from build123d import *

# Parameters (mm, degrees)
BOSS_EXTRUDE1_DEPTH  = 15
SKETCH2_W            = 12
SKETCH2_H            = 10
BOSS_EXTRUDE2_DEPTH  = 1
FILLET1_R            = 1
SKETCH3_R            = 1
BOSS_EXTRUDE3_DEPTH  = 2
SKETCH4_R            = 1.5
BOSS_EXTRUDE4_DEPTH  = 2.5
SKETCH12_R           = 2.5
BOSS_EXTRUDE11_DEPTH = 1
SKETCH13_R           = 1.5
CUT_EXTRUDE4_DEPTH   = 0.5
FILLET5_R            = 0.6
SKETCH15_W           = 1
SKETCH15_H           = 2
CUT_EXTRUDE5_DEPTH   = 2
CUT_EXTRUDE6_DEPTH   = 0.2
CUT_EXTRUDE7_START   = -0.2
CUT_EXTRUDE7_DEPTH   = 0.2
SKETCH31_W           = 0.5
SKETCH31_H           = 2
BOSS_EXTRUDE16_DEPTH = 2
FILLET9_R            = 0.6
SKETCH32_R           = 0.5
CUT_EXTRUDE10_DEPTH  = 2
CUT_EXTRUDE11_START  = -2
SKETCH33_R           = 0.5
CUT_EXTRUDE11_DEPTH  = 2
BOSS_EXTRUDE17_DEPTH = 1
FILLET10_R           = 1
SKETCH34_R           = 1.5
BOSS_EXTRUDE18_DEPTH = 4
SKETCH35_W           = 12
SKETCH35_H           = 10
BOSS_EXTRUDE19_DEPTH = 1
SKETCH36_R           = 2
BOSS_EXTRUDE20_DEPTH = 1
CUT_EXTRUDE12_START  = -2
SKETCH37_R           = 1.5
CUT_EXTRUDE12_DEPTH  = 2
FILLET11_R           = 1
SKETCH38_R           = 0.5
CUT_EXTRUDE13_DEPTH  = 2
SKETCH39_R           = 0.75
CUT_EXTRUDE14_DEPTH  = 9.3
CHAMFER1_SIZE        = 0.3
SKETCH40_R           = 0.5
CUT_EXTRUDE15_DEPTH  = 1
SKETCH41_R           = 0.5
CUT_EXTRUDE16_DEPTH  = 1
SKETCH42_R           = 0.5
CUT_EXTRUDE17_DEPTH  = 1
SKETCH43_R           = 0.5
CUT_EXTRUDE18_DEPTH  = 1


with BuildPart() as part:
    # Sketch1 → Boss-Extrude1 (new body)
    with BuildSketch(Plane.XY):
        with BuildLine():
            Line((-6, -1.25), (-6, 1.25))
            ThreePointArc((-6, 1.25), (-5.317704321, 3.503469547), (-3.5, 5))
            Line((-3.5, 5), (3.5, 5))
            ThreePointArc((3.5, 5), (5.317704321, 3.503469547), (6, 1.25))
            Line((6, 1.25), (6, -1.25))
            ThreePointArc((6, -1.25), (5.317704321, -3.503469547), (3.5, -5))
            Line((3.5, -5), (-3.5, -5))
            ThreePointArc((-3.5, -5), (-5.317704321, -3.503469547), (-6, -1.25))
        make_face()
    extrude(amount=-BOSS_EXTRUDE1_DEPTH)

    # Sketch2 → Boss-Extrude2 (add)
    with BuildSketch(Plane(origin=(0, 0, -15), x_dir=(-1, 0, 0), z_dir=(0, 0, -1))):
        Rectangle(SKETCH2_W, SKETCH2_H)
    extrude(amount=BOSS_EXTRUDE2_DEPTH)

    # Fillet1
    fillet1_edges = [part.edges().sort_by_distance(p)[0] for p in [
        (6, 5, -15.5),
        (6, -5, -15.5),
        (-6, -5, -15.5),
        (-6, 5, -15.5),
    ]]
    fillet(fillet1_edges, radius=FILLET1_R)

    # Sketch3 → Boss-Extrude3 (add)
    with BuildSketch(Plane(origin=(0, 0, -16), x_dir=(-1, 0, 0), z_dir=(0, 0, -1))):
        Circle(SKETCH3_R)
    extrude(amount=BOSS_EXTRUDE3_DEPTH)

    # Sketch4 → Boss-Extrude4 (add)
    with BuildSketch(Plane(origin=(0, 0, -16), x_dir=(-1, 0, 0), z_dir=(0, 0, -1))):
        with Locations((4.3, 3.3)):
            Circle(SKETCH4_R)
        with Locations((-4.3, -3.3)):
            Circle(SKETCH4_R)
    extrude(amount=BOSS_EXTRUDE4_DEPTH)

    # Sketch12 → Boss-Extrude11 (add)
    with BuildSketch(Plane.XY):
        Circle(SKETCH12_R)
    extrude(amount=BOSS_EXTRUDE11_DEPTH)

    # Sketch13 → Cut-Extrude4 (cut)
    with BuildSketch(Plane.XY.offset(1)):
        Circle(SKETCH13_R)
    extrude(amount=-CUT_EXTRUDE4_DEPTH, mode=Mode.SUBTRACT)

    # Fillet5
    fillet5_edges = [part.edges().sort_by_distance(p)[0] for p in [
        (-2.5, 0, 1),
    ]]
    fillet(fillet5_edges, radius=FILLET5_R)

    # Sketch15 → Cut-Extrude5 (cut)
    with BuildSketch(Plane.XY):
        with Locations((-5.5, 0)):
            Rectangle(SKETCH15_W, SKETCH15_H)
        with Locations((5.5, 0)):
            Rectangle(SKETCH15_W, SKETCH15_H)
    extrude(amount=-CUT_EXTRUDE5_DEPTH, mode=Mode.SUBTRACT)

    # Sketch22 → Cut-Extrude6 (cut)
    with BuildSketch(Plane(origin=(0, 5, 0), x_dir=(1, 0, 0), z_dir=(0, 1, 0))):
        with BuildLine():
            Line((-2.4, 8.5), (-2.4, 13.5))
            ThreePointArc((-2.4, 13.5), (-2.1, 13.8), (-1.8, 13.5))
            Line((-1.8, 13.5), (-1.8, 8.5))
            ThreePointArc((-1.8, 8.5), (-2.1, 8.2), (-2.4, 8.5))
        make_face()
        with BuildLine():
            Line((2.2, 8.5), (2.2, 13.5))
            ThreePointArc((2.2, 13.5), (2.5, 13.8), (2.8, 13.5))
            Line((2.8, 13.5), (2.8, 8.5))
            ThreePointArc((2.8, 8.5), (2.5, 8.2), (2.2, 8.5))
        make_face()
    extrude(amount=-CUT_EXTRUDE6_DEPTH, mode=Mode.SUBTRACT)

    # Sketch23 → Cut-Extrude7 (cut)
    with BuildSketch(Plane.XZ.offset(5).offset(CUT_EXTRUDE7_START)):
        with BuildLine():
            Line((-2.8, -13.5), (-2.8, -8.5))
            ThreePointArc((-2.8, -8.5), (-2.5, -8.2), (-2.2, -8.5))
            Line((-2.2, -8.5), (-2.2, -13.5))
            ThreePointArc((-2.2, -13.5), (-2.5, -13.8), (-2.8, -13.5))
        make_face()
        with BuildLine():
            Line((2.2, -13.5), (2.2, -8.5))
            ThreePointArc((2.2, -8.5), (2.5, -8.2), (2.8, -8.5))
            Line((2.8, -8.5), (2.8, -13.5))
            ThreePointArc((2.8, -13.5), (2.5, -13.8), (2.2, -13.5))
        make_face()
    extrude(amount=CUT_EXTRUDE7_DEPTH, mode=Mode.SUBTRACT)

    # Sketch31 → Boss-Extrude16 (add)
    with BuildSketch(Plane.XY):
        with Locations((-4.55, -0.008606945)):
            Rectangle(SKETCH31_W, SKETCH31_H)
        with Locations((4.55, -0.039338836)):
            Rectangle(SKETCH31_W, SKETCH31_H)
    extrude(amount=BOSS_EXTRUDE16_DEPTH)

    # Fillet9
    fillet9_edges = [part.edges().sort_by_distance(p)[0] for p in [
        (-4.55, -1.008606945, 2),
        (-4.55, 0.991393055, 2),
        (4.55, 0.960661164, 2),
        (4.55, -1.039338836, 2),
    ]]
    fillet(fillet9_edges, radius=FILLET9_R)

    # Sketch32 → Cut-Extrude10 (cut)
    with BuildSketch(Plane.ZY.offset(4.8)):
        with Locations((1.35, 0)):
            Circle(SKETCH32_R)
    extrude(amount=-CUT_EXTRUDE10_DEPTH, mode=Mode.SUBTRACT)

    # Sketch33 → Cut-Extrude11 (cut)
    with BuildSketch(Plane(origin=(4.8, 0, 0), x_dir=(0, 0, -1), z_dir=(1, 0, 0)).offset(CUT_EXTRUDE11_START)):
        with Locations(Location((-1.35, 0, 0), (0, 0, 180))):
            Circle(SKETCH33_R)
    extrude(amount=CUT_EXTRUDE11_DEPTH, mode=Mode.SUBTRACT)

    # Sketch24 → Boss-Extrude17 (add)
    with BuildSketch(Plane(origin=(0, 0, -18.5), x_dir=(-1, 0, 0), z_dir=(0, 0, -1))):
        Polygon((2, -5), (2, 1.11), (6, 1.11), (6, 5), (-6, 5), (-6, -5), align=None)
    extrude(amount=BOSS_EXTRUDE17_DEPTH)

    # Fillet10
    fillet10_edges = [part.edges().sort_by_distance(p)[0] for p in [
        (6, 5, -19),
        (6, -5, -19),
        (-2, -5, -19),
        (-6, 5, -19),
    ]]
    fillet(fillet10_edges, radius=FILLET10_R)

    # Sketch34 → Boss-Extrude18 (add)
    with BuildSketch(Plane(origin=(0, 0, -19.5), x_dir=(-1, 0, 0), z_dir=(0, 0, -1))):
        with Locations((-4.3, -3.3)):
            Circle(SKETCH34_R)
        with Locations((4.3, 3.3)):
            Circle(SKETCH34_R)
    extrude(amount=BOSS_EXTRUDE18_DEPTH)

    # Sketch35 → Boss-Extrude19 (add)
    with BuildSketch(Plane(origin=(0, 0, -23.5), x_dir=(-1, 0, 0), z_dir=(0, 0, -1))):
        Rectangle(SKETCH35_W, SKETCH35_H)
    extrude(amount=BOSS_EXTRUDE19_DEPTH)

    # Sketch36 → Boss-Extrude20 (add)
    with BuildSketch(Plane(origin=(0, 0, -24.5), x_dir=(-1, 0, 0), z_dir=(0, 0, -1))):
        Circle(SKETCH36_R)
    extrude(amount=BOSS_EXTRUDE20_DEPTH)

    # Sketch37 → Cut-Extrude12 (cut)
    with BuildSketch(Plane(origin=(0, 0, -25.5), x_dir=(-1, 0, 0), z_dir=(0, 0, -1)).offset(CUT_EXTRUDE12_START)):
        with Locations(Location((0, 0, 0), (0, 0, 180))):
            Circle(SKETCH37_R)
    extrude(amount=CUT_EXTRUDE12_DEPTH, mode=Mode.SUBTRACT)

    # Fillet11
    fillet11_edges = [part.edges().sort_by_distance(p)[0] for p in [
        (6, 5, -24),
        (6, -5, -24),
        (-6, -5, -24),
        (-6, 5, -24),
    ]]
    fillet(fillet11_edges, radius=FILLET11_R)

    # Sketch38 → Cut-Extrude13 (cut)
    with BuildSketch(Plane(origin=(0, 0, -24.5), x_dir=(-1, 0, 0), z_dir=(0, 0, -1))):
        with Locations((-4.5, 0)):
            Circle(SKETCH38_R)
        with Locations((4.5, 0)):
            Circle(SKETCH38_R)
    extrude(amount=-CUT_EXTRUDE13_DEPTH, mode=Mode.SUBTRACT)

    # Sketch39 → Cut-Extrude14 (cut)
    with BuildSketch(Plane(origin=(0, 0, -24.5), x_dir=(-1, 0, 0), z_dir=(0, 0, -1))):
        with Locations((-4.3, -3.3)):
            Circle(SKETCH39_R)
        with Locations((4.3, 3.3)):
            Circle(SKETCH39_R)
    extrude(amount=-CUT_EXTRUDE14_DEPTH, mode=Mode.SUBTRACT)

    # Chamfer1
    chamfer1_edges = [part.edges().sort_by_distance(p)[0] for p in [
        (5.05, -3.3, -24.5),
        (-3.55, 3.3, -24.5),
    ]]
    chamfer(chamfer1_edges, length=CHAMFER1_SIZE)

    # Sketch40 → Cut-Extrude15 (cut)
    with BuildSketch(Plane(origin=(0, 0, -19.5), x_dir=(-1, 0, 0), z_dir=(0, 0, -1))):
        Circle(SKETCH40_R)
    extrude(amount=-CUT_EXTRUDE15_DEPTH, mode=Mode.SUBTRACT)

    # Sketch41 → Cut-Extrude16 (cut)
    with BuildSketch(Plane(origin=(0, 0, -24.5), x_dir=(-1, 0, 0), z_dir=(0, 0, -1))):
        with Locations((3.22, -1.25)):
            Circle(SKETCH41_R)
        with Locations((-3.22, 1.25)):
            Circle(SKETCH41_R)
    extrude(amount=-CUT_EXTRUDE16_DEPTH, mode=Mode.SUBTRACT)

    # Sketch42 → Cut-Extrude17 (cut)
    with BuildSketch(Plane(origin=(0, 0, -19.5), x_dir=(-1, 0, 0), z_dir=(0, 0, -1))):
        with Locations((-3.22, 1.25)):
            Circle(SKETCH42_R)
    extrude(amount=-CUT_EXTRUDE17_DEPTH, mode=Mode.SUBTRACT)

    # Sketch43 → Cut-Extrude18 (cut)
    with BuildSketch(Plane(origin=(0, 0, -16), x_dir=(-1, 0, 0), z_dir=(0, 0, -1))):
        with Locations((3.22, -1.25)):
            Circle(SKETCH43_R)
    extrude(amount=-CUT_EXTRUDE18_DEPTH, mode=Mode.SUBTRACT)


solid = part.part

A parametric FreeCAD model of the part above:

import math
import FreeCAD as App
import Part
import Sketcher
from FreeCAD import Vector
Q = App.Units.Quantity


def edges_at(feature, points):
    """Names of the edges that pass closest to the given points."""
    edges = feature.Shape.Edges
    near = lambda p: min(range(len(edges)), key=lambda i: edges[i].distToShape(Part.Vertex(*p))[0])
    return sorted({f"Edge{near(p) + 1}" for p in points})

doc = App.newDocument("Part")
body = doc.addObject("PartDesign::Body", "Body")

sketch1 = body.newObject("Sketcher::SketchObject", "Sketch")
sketch1.AttachmentSupport = (doc.getObject("XY_Plane"), [""])
sketch1.MapMode = "FlatFace"
sketch1.addGeometry(Part.LineSegment(Vector(-6, 1.2, 0), Vector(-6, -1.2, 0)), False)
sketch1.addGeometry(Part.ArcOfCircle(Part.Circle(Vector(-1.9, -1.2, 0), Vector(0, 0, 1), 4.1), math.radians(180), math.radians(247)), False)
sketch1.addGeometry(Part.LineSegment(Vector(-3.5, -5, 0), Vector(3.5, -5, 0)), False)
sketch1.addGeometry(Part.ArcOfCircle(Part.Circle(Vector(1.9, -1.2, 0), Vector(0, 0, 1), 4.1), math.radians(-67), math.radians(0)), False)
sketch1.addGeometry(Part.LineSegment(Vector(6, -1.2, 0), Vector(6, 1.2, 0)), False)
sketch1.addGeometry(Part.ArcOfCircle(Part.Circle(Vector(1.9, 1.2, 0), Vector(0, 0, 1), 4.1), math.radians(0), math.radians(67)), False)
sketch1.addGeometry(Part.LineSegment(Vector(3.5, 5, 0), Vector(-3.5, 5, 0)), False)
sketch1.addGeometry(Part.ArcOfCircle(Part.Circle(Vector(-1.9, 1.2, 0), Vector(0, 0, 1), 4.1), math.radians(113), math.radians(180)), False)
sketch1.addConstraint(Sketcher.Constraint("Tangent", 0, 2, 1, 1))
sketch1.addConstraint(Sketcher.Constraint("Coincident", 1, 2, 2, 1))
sketch1.addConstraint(Sketcher.Constraint("Coincident", 2, 2, 3, 1))
sketch1.addConstraint(Sketcher.Constraint("Tangent", 3, 2, 4, 1))
sketch1.addConstraint(Sketcher.Constraint("Tangent", 4, 2, 5, 1))
sketch1.addConstraint(Sketcher.Constraint("Coincident", 5, 2, 6, 1))
sketch1.addConstraint(Sketcher.Constraint("Coincident", 6, 2, 7, 1))
sketch1.addConstraint(Sketcher.Constraint("Tangent", 7, 2, 0, 1))
sketch1.addConstraint(Sketcher.Constraint("Vertical", 0))
sketch1.addConstraint(Sketcher.Constraint("Horizontal", 2))
sketch1.addConstraint(Sketcher.Constraint("Vertical", 4))
sketch1.addConstraint(Sketcher.Constraint("Horizontal", 6))
sketch1.addConstraint(Sketcher.Constraint("Equal", 1, 3))
sketch1.addConstraint(Sketcher.Constraint("Equal", 3, 5))
sketch1.addConstraint(Sketcher.Constraint("Equal", 5, 7))
sketch1.addConstraint(Sketcher.Constraint("Symmetric", 1, 3, 5, 3, -1, 1))
sketch1.addConstraint(Sketcher.Constraint("Symmetric", 2, 2, 6, 2, -1, 1))
sketch1.addConstraint(Sketcher.Constraint("Horizontal", 1, 3, 3, 3))
sketch1.addConstraint(Sketcher.Constraint("DistanceX", 2, 1, 2, 2, Q("7 mm")))
sketch1.addConstraint(Sketcher.Constraint("DistanceY", 0, 2, 0, 1, Q("2.5 mm")))
sketch1.addConstraint(Sketcher.Constraint("DistanceX", 0, 2, -1, 1, Q("6 mm")))
sketch1.addConstraint(Sketcher.Constraint("DistanceY", 1, 2, -1, 1, Q("5 mm")))
pad1 = body.newObject("PartDesign::Pad", "Pad")
pad1.Profile = sketch1
pad1.Length = 15
pad1.Reversed = True

sketch2 = body.newObject("Sketcher::SketchObject", "Sketch001")
sketch2.AttachmentSupport = (doc.getObject("XY_Plane"), [""])
sketch2.MapMode = "FlatFace"
sketch2.AttachmentOffset = App.Placement(Vector(0, 0, -15), App.Rotation())
sketch2.addGeometry(Part.LineSegment(Vector(6, 5, 0), Vector(6, -5, 0)), False)
sketch2.addGeometry(Part.LineSegment(Vector(6, -5, 0), Vector(-6, -5, 0)), False)
sketch2.addGeometry(Part.LineSegment(Vector(-6, -5, 0), Vector(-6, 5, 0)), False)
sketch2.addGeometry(Part.LineSegment(Vector(-6, 5, 0), Vector(6, 5, 0)), False)
sketch2.addConstraint(Sketcher.Constraint("Coincident", 0, 2, 1, 1))
sketch2.addConstraint(Sketcher.Constraint("Coincident", 1, 2, 2, 1))
sketch2.addConstraint(Sketcher.Constraint("Coincident", 2, 2, 3, 1))
sketch2.addConstraint(Sketcher.Constraint("Coincident", 3, 2, 0, 1))
sketch2.addConstraint(Sketcher.Constraint("Vertical", 0))
sketch2.addConstraint(Sketcher.Constraint("Horizontal", 1))
sketch2.addConstraint(Sketcher.Constraint("Vertical", 2))
sketch2.addConstraint(Sketcher.Constraint("Horizontal", 3))
sketch2.addConstraint(Sketcher.Constraint("Symmetric", 0, 2, 2, 2, -1, 1))
sketch2.addConstraint(Sketcher.Constraint("DistanceX", 1, 2, 1, 1, Q("12 mm")))
sketch2.addConstraint(Sketcher.Constraint("DistanceY", 0, 2, 0, 1, Q("10 mm")))
pad2 = body.newObject("PartDesign::Pad", "Pad001")
pad2.Profile = sketch2
pad2.Length = 1
pad2.Reversed = True
doc.recompute()

fillet = body.newObject("PartDesign::Fillet", "Fillet")
fillet.Base = (pad2, edges_at(pad2, [
    (6, 5, -15.5),
    (6, -5, -15.5),
    (-6, -5, -15.5),
    (-6, 5, -15.5),
]))
fillet.Radius = 1

sketch3 = body.newObject("Sketcher::SketchObject", "Sketch002")
sketch3.AttachmentSupport = (doc.getObject("XY_Plane"), [""])
sketch3.MapMode = "FlatFace"
sketch3.AttachmentOffset = App.Placement(Vector(0, 0, -16), App.Rotation())
sketch3.addGeometry(Part.Circle(Vector(0, 0, 0), Vector(0, 0, 1), 1), False)
sketch3.addConstraint(Sketcher.Constraint("Coincident", 0, 3, -1, 1))
sketch3.addConstraint(Sketcher.Constraint("Diameter", 0, Q("2 mm")))
pad3 = body.newObject("PartDesign::Pad", "Pad002")
pad3.Profile = sketch3
pad3.Length = 2
pad3.Reversed = True

sketch4 = body.newObject("Sketcher::SketchObject", "Sketch003")
sketch4.AttachmentSupport = (doc.getObject("XY_Plane"), [""])
sketch4.MapMode = "FlatFace"
sketch4.AttachmentOffset = App.Placement(Vector(0, 0, -16), App.Rotation())
sketch4.addGeometry(Part.Circle(Vector(-4.3, 3.3, 0), Vector(0, 0, 1), 1.5), False)
sketch4.addGeometry(Part.Circle(Vector(4.3, -3.3, 0), Vector(0, 0, 1), 1.5), False)
sketch4.addConstraint(Sketcher.Constraint("Equal", 0, 1))
sketch4.addConstraint(Sketcher.Constraint("Symmetric", 0, 3, 1, 3, -1, 1))
sketch4.addConstraint(Sketcher.Constraint("Diameter", 0, Q("3 mm")))
sketch4.addConstraint(Sketcher.Constraint("DistanceX", 0, 3, -1, 1, Q("4.3 mm")))
sketch4.addConstraint(Sketcher.Constraint("DistanceY", -1, 1, 0, 3, Q("3.3 mm")))
pad4 = body.newObject("PartDesign::Pad", "Pad003")
pad4.Profile = sketch4
pad4.Length = 2.5
pad4.Reversed = True

sketch5 = body.newObject("Sketcher::SketchObject", "Sketch004")
sketch5.AttachmentSupport = (doc.getObject("XY_Plane"), [""])
sketch5.MapMode = "FlatFace"
sketch5.addGeometry(Part.Circle(Vector(0, 0, 0), Vector(0, 0, 1), 2.5), False)
sketch5.addConstraint(Sketcher.Constraint("Coincident", 0, 3, -1, 1))
sketch5.addConstraint(Sketcher.Constraint("Diameter", 0, Q("5 mm")))
pad5 = body.newObject("PartDesign::Pad", "Pad004")
pad5.Profile = sketch5
pad5.Length = 1

sketch6 = body.newObject("Sketcher::SketchObject", "Sketch005")
sketch6.AttachmentSupport = (doc.getObject("XY_Plane"), [""])
sketch6.MapMode = "FlatFace"
sketch6.AttachmentOffset = App.Placement(Vector(0, 0, 1), App.Rotation())
sketch6.addGeometry(Part.Circle(Vector(0, 0, 0), Vector(0, 0, 1), 1.5), False)
sketch6.addConstraint(Sketcher.Constraint("Coincident", 0, 3, -1, 1))
sketch6.addConstraint(Sketcher.Constraint("Diameter", 0, Q("3 mm")))
pocket1 = body.newObject("PartDesign::Pocket", "Pocket")
pocket1.Profile = sketch6
pocket1.Length = 0.5
doc.recompute()

fillet2 = body.newObject("PartDesign::Fillet", "Fillet001")
fillet2.Base = (pocket1, edges_at(pocket1, [(-2.5, 0, 1)]))
fillet2.Radius = 0.6

sketch7 = body.newObject("Sketcher::SketchObject", "Sketch006")
sketch7.AttachmentSupport = (doc.getObject("XY_Plane"), [""])
sketch7.MapMode = "FlatFace"
sketch7.addGeometry(Part.LineSegment(Vector(-6, 1, 0), Vector(-6, -1, 0)), False)
sketch7.addGeometry(Part.LineSegment(Vector(-6, -1, 0), Vector(-5, -1, 0)), False)
sketch7.addGeometry(Part.LineSegment(Vector(-5, -1, 0), Vector(-5, 1, 0)), False)
sketch7.addGeometry(Part.LineSegment(Vector(-5, 1, 0), Vector(-6, 1, 0)), False)
sketch7.addGeometry(Part.LineSegment(Vector(5, 1, 0), Vector(5, -1, 0)), False)
sketch7.addGeometry(Part.LineSegment(Vector(5, -1, 0), Vector(6, -1, 0)), False)
sketch7.addGeometry(Part.LineSegment(Vector(6, -1, 0), Vector(6, 1, 0)), False)
sketch7.addGeometry(Part.LineSegment(Vector(6, 1, 0), Vector(5, 1, 0)), False)
sketch7.addConstraint(Sketcher.Constraint("Coincident", 0, 2, 1, 1))
sketch7.addConstraint(Sketcher.Constraint("Coincident", 1, 2, 2, 1))
sketch7.addConstraint(Sketcher.Constraint("Coincident", 2, 2, 3, 1))
sketch7.addConstraint(Sketcher.Constraint("Coincident", 3, 2, 0, 1))
sketch7.addConstraint(Sketcher.Constraint("Coincident", 4, 2, 5, 1))
sketch7.addConstraint(Sketcher.Constraint("Coincident", 5, 2, 6, 1))
sketch7.addConstraint(Sketcher.Constraint("Coincident", 6, 2, 7, 1))
sketch7.addConstraint(Sketcher.Constraint("Coincident", 7, 2, 4, 1))
sketch7.addConstraint(Sketcher.Constraint("Vertical", 0))
sketch7.addConstraint(Sketcher.Constraint("Horizontal", 1))
sketch7.addConstraint(Sketcher.Constraint("Vertical", 2))
sketch7.addConstraint(Sketcher.Constraint("Horizontal", 3))
sketch7.addConstraint(Sketcher.Constraint("Vertical", 4))
sketch7.addConstraint(Sketcher.Constraint("Horizontal", 5))
sketch7.addConstraint(Sketcher.Constraint("Vertical", 6))
sketch7.addConstraint(Sketcher.Constraint("Horizontal", 7))
sketch7.addConstraint(Sketcher.Constraint("Symmetric", 2, 2, 4, 2, -1, 1))
sketch7.addConstraint(Sketcher.Constraint("Symmetric", 0, 2, 6, 2, -1, 1))
sketch7.addConstraint(Sketcher.Constraint("Horizontal", 1, 2, 4, 2))
sketch7.addConstraint(Sketcher.Constraint("DistanceX", 1, 1, 1, 2, Q("1 mm")))
sketch7.addConstraint(Sketcher.Constraint("DistanceY", 0, 2, 0, 1, Q("2 mm")))
sketch7.addConstraint(Sketcher.Constraint("DistanceX", 0, 2, -1, 1, Q("6 mm")))
pocket2 = body.newObject("PartDesign::Pocket", "Pocket001")
pocket2.Profile = sketch7
pocket2.Length = 2

sketch8 = body.newObject("Sketcher::SketchObject", "Sketch007")
sketch8.AttachmentSupport = (doc.getObject("XZ_Plane"), [""])
sketch8.MapMode = "FlatFace"
sketch8.AttachmentOffset = App.Placement(Vector(0, 0, -5), App.Rotation())
sketch8.addGeometry(Part.LineSegment(Vector(-2.4, -13.5, 0), Vector(-2.4, -8.5, 0)), False)
sketch8.addGeometry(Part.ArcOfCircle(Part.Circle(Vector(-2.1, -8.5, 0), Vector(0, 0, 1), 0.3), math.radians(0), math.radians(180)), False)
sketch8.addGeometry(Part.LineSegment(Vector(-1.8, -8.5, 0), Vector(-1.8, -13.5, 0)), False)
sketch8.addGeometry(Part.ArcOfCircle(Part.Circle(Vector(-2.1, -13.5, 0), Vector(0, 0, 1), 0.3), math.radians(180), math.radians(360)), False)
sketch8.addGeometry(Part.LineSegment(Vector(2.2, -13.5, 0), Vector(2.2, -8.5, 0)), False)
sketch8.addGeometry(Part.ArcOfCircle(Part.Circle(Vector(2.5, -8.5, 0), Vector(0, 0, 1), 0.3), math.radians(0), math.radians(180)), False)
sketch8.addGeometry(Part.LineSegment(Vector(2.8, -8.5, 0), Vector(2.8, -13.5, 0)), False)
sketch8.addGeometry(Part.ArcOfCircle(Part.Circle(Vector(2.5, -13.5, 0), Vector(0, 0, 1), 0.3), math.radians(180), math.radians(360)), False)
sketch8.addConstraint(Sketcher.Constraint("Tangent", 0, 2, 1, 2))
sketch8.addConstraint(Sketcher.Constraint("Tangent", 1, 1, 2, 1))
sketch8.addConstraint(Sketcher.Constraint("Tangent", 2, 2, 3, 2))
sketch8.addConstraint(Sketcher.Constraint("Tangent", 3, 1, 0, 1))
sketch8.addConstraint(Sketcher.Constraint("Tangent", 4, 2, 5, 2))
sketch8.addConstraint(Sketcher.Constraint("Tangent", 5, 1, 6, 1))
sketch8.addConstraint(Sketcher.Constraint("Tangent", 6, 2, 7, 2))
sketch8.addConstraint(Sketcher.Constraint("Tangent", 7, 1, 4, 1))
sketch8.addConstraint(Sketcher.Constraint("Vertical", 0))
sketch8.addConstraint(Sketcher.Constraint("Vertical", 2))
sketch8.addConstraint(Sketcher.Constraint("Vertical", 4))
sketch8.addConstraint(Sketcher.Constraint("Vertical", 6))
sketch8.addConstraint(Sketcher.Constraint("Equal", 3, 5))
sketch8.addConstraint(Sketcher.Constraint("Horizontal", 1, 3, 5, 3))
sketch8.addConstraint(Sketcher.Constraint("Horizontal", 3, 3, 7, 3))
sketch8.addConstraint(Sketcher.Constraint("Radius", 1, Q("0.3 mm")))
sketch8.addConstraint(Sketcher.Constraint("DistanceY", 0, 1, 0, 2, Q("5 mm")))
sketch8.addConstraint(Sketcher.Constraint("DistanceX", 1, 1, 4, 2, Q("4 mm")))
sketch8.addConstraint(Sketcher.Constraint("DistanceX", 1, 3, -1, 1, Q("2.1 mm")))
sketch8.addConstraint(Sketcher.Constraint("DistanceY", 1, 3, -1, 1, Q("8.5 mm")))
pocket3 = body.newObject("PartDesign::Pocket", "Pocket002")
pocket3.Profile = sketch8
pocket3.Length = 0.2
pocket3.Reversed = True

sketch9 = body.newObject("Sketcher::SketchObject", "Sketch008")
sketch9.AttachmentSupport = (doc.getObject("XZ_Plane"), [""])
sketch9.MapMode = "FlatFace"
sketch9.AttachmentOffset = App.Placement(Vector(0, 0, 4.8), App.Rotation())
sketch9.addGeometry(Part.LineSegment(Vector(-2.8, -8.5, 0), Vector(-2.8, -13.5, 0)), False)
sketch9.addGeometry(Part.ArcOfCircle(Part.Circle(Vector(-2.5, -13.5, 0), Vector(0, 0, 1), 0.3), math.radians(180), math.radians(360)), False)
sketch9.addGeometry(Part.LineSegment(Vector(-2.2, -13.5, 0), Vector(-2.2, -8.5, 0)), False)
sketch9.addGeometry(Part.ArcOfCircle(Part.Circle(Vector(-2.5, -8.5, 0), Vector(0, 0, 1), 0.3), math.radians(0), math.radians(180)), False)
sketch9.addGeometry(Part.LineSegment(Vector(2.2, -8.5, 0), Vector(2.2, -13.5, 0)), False)
sketch9.addGeometry(Part.ArcOfCircle(Part.Circle(Vector(2.5, -13.5, 0), Vector(0, 0, 1), 0.3), math.radians(180), math.radians(360)), False)
sketch9.addGeometry(Part.LineSegment(Vector(2.8, -13.5, 0), Vector(2.8, -8.5, 0)), False)
sketch9.addGeometry(Part.ArcOfCircle(Part.Circle(Vector(2.5, -8.5, 0), Vector(0, 0, 1), 0.3), math.radians(0), math.radians(180)), False)
sketch9.addConstraint(Sketcher.Constraint("Tangent", 0, 2, 1, 1))
sketch9.addConstraint(Sketcher.Constraint("Tangent", 1, 2, 2, 1))
sketch9.addConstraint(Sketcher.Constraint("Tangent", 2, 2, 3, 1))
sketch9.addConstraint(Sketcher.Constraint("Tangent", 3, 2, 0, 1))
sketch9.addConstraint(Sketcher.Constraint("Tangent", 4, 2, 5, 1))
sketch9.addConstraint(Sketcher.Constraint("Tangent", 5, 2, 6, 1))
sketch9.addConstraint(Sketcher.Constraint("Tangent", 6, 2, 7, 1))
sketch9.addConstraint(Sketcher.Constraint("Tangent", 7, 2, 4, 1))
sketch9.addConstraint(Sketcher.Constraint("Vertical", 0))
sketch9.addConstraint(Sketcher.Constraint("Vertical", 2))
sketch9.addConstraint(Sketcher.Constraint("Vertical", 4))
sketch9.addConstraint(Sketcher.Constraint("Vertical", 6))
sketch9.addConstraint(Sketcher.Constraint("Equal", 3, 5))
sketch9.addConstraint(Sketcher.Constraint("Symmetric", 1, 3, 5, 3, -2))
sketch9.addConstraint(Sketcher.Constraint("Horizontal", 3, 3, 7, 3))
sketch9.addConstraint(Sketcher.Constraint("Radius", 1, Q("0.3 mm")))
sketch9.addConstraint(Sketcher.Constraint("DistanceY", 0, 2, 0, 1, Q("5 mm")))
sketch9.addConstraint(Sketcher.Constraint("DistanceX", 1, 3, 5, 3, Q("5 mm")))
sketch9.addConstraint(Sketcher.Constraint("DistanceY", 1, 3, -1, 1, Q("13.5 mm")))
pocket4 = body.newObject("PartDesign::Pocket", "Pocket003")
pocket4.Profile = sketch9
pocket4.Length = 0.2
pocket4.Reversed = True

sketch10 = body.newObject("Sketcher::SketchObject", "Sketch009")
sketch10.AttachmentSupport = (doc.getObject("XY_Plane"), [""])
sketch10.MapMode = "FlatFace"
sketch10.addGeometry(Part.LineSegment(Vector(-4.8, 1, 0), Vector(-4.8, -1, 0)), False)
sketch10.addGeometry(Part.LineSegment(Vector(-4.8, -1, 0), Vector(-4.3, -1, 0)), False)
sketch10.addGeometry(Part.LineSegment(Vector(-4.3, -1, 0), Vector(-4.3, 1, 0)), False)
sketch10.addGeometry(Part.LineSegment(Vector(-4.3, 1, 0), Vector(-4.8, 1, 0)), False)
sketch10.addGeometry(Part.LineSegment(Vector(4.3, 1, 0), Vector(4.3, -1, 0)), False)
sketch10.addGeometry(Part.LineSegment(Vector(4.3, -1, 0), Vector(4.8, -1, 0)), False)
sketch10.addGeometry(Part.LineSegment(Vector(4.8, -1, 0), Vector(4.8, 1, 0)), False)
sketch10.addGeometry(Part.LineSegment(Vector(4.8, 1, 0), Vector(4.3, 1, 0)), False)
sketch10.addConstraint(Sketcher.Constraint("Coincident", 0, 2, 1, 1))
sketch10.addConstraint(Sketcher.Constraint("Coincident", 1, 2, 2, 1))
sketch10.addConstraint(Sketcher.Constraint("Coincident", 2, 2, 3, 1))
sketch10.addConstraint(Sketcher.Constraint("Coincident", 3, 2, 0, 1))
sketch10.addConstraint(Sketcher.Constraint("Coincident", 4, 2, 5, 1))
sketch10.addConstraint(Sketcher.Constraint("Coincident", 5, 2, 6, 1))
sketch10.addConstraint(Sketcher.Constraint("Coincident", 6, 2, 7, 1))
sketch10.addConstraint(Sketcher.Constraint("Coincident", 7, 2, 4, 1))
sketch10.addConstraint(Sketcher.Constraint("Vertical", 0))
sketch10.addConstraint(Sketcher.Constraint("Horizontal", 1))
sketch10.addConstraint(Sketcher.Constraint("Vertical", 2))
sketch10.addConstraint(Sketcher.Constraint("Horizontal", 3))
sketch10.addConstraint(Sketcher.Constraint("Vertical", 4))
sketch10.addConstraint(Sketcher.Constraint("Horizontal", 5))
sketch10.addConstraint(Sketcher.Constraint("Vertical", 6))
sketch10.addConstraint(Sketcher.Constraint("Horizontal", 7))
sketch10.addConstraint(Sketcher.Constraint("Equal", 3, 5))
sketch10.addConstraint(Sketcher.Constraint("Equal", 2, 4))
sketch10.addConstraint(Sketcher.Constraint("DistanceY", 0, 2, 0, 1, Q("2 mm")))
sketch10.addConstraint(Sketcher.Constraint("DistanceX", 1, 1, 1, 2, Q("0.5 mm")))
sketch10.addConstraint(Sketcher.Constraint("DistanceX", 0, 2, -1, 1, Q("4.8 mm")))
sketch10.addConstraint(Sketcher.Constraint("DistanceX", -1, 1, 4, 2, Q("4.3 mm")))
sketch10.addConstraint(Sketcher.Constraint("DistanceY", 4, 2, -1, 1, Q("1.039339 mm")))
sketch10.addConstraint(Sketcher.Constraint("DistanceY", 4, 2, 1, 2, Q("0.030732 mm")))
pad6 = body.newObject("PartDesign::Pad", "Pad005")
pad6.Profile = sketch10
pad6.Length = 2
doc.recompute()

fillet3 = body.newObject("PartDesign::Fillet", "Fillet002")
fillet3.Base = (pad6, edges_at(pad6, [
    (-4.55, -1.009, 2),
    (-4.55, 0.991, 2),
    (4.55, 0.961, 2),
    (4.55, -1.039, 2),
]))
fillet3.Radius = 0.6

sketch11 = body.newObject("Sketcher::SketchObject", "Sketch010")
sketch11.AttachmentSupport = (doc.getObject("YZ_Plane"), [""])
sketch11.MapMode = "FlatFace"
sketch11.AttachmentOffset = App.Placement(Vector(0, 0, -4.8), App.Rotation())
sketch11.addGeometry(Part.Circle(Vector(0, 1.4, 0), Vector(0, 0, 1), 0.5), False)
sketch11.addConstraint(Sketcher.Constraint("PointOnObject", 0, 3, -2))
sketch11.addConstraint(Sketcher.Constraint("Diameter", 0, Q("1 mm")))
sketch11.addConstraint(Sketcher.Constraint("DistanceY", -1, 1, 0, 3, Q("1.35 mm")))
pocket5 = body.newObject("PartDesign::Pocket", "Pocket004")
pocket5.Profile = sketch11
pocket5.Length = 2
pocket5.Reversed = True

sketch12 = body.newObject("Sketcher::SketchObject", "Sketch011")
sketch12.AttachmentSupport = (doc.getObject("YZ_Plane"), [""])
sketch12.MapMode = "FlatFace"
sketch12.AttachmentOffset = App.Placement(Vector(0, 0, 2.8), App.Rotation())
sketch12.addGeometry(Part.Circle(Vector(0, 1.4, 0), Vector(0, 0, 1), 0.5), False)
sketch12.addConstraint(Sketcher.Constraint("PointOnObject", 0, 3, -2))
sketch12.addConstraint(Sketcher.Constraint("Diameter", 0, Q("1 mm")))
sketch12.addConstraint(Sketcher.Constraint("DistanceY", -1, 1, 0, 3, Q("1.35 mm")))
pocket6 = body.newObject("PartDesign::Pocket", "Pocket005")
pocket6.Profile = sketch12
pocket6.Length = 2
pocket6.Reversed = True

sketch13 = body.newObject("Sketcher::SketchObject", "Sketch012")
sketch13.AttachmentSupport = (doc.getObject("XY_Plane"), [""])
sketch13.MapMode = "FlatFace"
sketch13.AttachmentOffset = App.Placement(Vector(0, 0, -18.5), App.Rotation())
sketch13.addGeometry(Part.LineSegment(Vector(-2, -5, 0), Vector(-2, 1.1, 0)), False)
sketch13.addGeometry(Part.LineSegment(Vector(-2, 1.1, 0), Vector(-6, 1.1, 0)), False)
sketch13.addGeometry(Part.LineSegment(Vector(-6, 1.1, 0), Vector(-6, 5, 0)), False)
sketch13.addGeometry(Part.LineSegment(Vector(-6, 5, 0), Vector(6, 5, 0)), False)
sketch13.addGeometry(Part.LineSegment(Vector(6, 5, 0), Vector(6, -5, 0)), False)
sketch13.addGeometry(Part.LineSegment(Vector(6, -5, 0), Vector(-2, -5, 0)), False)
sketch13.addConstraint(Sketcher.Constraint("Coincident", 0, 2, 1, 1))
sketch13.addConstraint(Sketcher.Constraint("Coincident", 1, 2, 2, 1))
sketch13.addConstraint(Sketcher.Constraint("Coincident", 2, 2, 3, 1))
sketch13.addConstraint(Sketcher.Constraint("Coincident", 3, 2, 4, 1))
sketch13.addConstraint(Sketcher.Constraint("Coincident", 4, 2, 5, 1))
sketch13.addConstraint(Sketcher.Constraint("Coincident", 5, 2, 0, 1))
sketch13.addConstraint(Sketcher.Constraint("Vertical", 0))
sketch13.addConstraint(Sketcher.Constraint("Horizontal", 1))
sketch13.addConstraint(Sketcher.Constraint("Vertical", 2))
sketch13.addConstraint(Sketcher.Constraint("Horizontal", 3))
sketch13.addConstraint(Sketcher.Constraint("Vertical", 4))
sketch13.addConstraint(Sketcher.Constraint("Horizontal", 5))
sketch13.addConstraint(Sketcher.Constraint("Symmetric", 2, 2, 4, 2, -1, 1))
sketch13.addConstraint(Sketcher.Constraint("DistanceX", 1, 2, 1, 1, Q("4 mm")))
sketch13.addConstraint(Sketcher.Constraint("DistanceX", 3, 1, 3, 2, Q("12 mm")))
sketch13.addConstraint(Sketcher.Constraint("DistanceY", 4, 2, 4, 1, Q("10 mm")))
sketch13.addConstraint(Sketcher.Constraint("DistanceY", 0, 1, 0, 2, Q("6.11 mm")))
pad7 = body.newObject("PartDesign::Pad", "Pad006")
pad7.Profile = sketch13
pad7.Length = 1
pad7.Reversed = True
doc.recompute()

fillet4 = body.newObject("PartDesign::Fillet", "Fillet003")
fillet4.Base = (pad7, edges_at(pad7, [
    (6, 5, -19),
    (6, -5, -19),
    (-2, -5, -19),
    (-6, 5, -19),
]))
fillet4.Radius = 1

sketch14 = body.newObject("Sketcher::SketchObject", "Sketch013")
sketch14.AttachmentSupport = (doc.getObject("XY_Plane"), [""])
sketch14.MapMode = "FlatFace"
sketch14.AttachmentOffset = App.Placement(Vector(0, 0, -19.5), App.Rotation())
sketch14.addGeometry(Part.Circle(Vector(4.3, -3.3, 0), Vector(0, 0, 1), 1.5), False)
sketch14.addGeometry(Part.Circle(Vector(-4.3, 3.3, 0), Vector(0, 0, 1), 1.5), False)
sketch14.addConstraint(Sketcher.Constraint("Equal", 0, 1))
sketch14.addConstraint(Sketcher.Constraint("Symmetric", 0, 3, 1, 3, -1, 1))
sketch14.addConstraint(Sketcher.Constraint("Diameter", 0, Q("3 mm")))
sketch14.addConstraint(Sketcher.Constraint("DistanceX", -1, 1, 0, 3, Q("4.3 mm")))
sketch14.addConstraint(Sketcher.Constraint("DistanceY", 0, 3, -1, 1, Q("3.3 mm")))
pad8 = body.newObject("PartDesign::Pad", "Pad007")
pad8.Profile = sketch14
pad8.Length = 4
pad8.Reversed = True

sketch15 = body.newObject("Sketcher::SketchObject", "Sketch014")
sketch15.AttachmentSupport = (doc.getObject("XY_Plane"), [""])
sketch15.MapMode = "FlatFace"
sketch15.AttachmentOffset = App.Placement(Vector(0, 0, -23.5), App.Rotation())
sketch15.addGeometry(Part.LineSegment(Vector(6, 5, 0), Vector(6, -5, 0)), False)
sketch15.addGeometry(Part.LineSegment(Vector(6, -5, 0), Vector(-6, -5, 0)), False)
sketch15.addGeometry(Part.LineSegment(Vector(-6, -5, 0), Vector(-6, 5, 0)), False)
sketch15.addGeometry(Part.LineSegment(Vector(-6, 5, 0), Vector(6, 5, 0)), False)
sketch15.addConstraint(Sketcher.Constraint("Coincident", 0, 2, 1, 1))
sketch15.addConstraint(Sketcher.Constraint("Coincident", 1, 2, 2, 1))
sketch15.addConstraint(Sketcher.Constraint("Coincident", 2, 2, 3, 1))
sketch15.addConstraint(Sketcher.Constraint("Coincident", 3, 2, 0, 1))
sketch15.addConstraint(Sketcher.Constraint("Vertical", 0))
sketch15.addConstraint(Sketcher.Constraint("Horizontal", 1))
sketch15.addConstraint(Sketcher.Constraint("Vertical", 2))
sketch15.addConstraint(Sketcher.Constraint("Horizontal", 3))
sketch15.addConstraint(Sketcher.Constraint("Symmetric", 0, 2, 2, 2, -1, 1))
sketch15.addConstraint(Sketcher.Constraint("DistanceX", 1, 2, 1, 1, Q("12 mm")))
sketch15.addConstraint(Sketcher.Constraint("DistanceY", 0, 2, 0, 1, Q("10 mm")))
pad9 = body.newObject("PartDesign::Pad", "Pad008")
pad9.Profile = sketch15
pad9.Length = 1
pad9.Reversed = True

sketch16 = body.newObject("Sketcher::SketchObject", "Sketch015")
sketch16.AttachmentSupport = (doc.getObject("XY_Plane"), [""])
sketch16.MapMode = "FlatFace"
sketch16.AttachmentOffset = App.Placement(Vector(0, 0, -24.5), App.Rotation())
sketch16.addGeometry(Part.Circle(Vector(0, 0, 0), Vector(0, 0, 1), 2), False)
sketch16.addConstraint(Sketcher.Constraint("Coincident", 0, 3, -1, 1))
sketch16.addConstraint(Sketcher.Constraint("Diameter", 0, Q("4 mm")))
pad10 = body.newObject("PartDesign::Pad", "Pad009")
pad10.Profile = sketch16
pad10.Length = 1
pad10.Reversed = True

sketch17 = body.newObject("Sketcher::SketchObject", "Sketch016")
sketch17.AttachmentSupport = (doc.getObject("XY_Plane"), [""])
sketch17.MapMode = "FlatFace"
sketch17.AttachmentOffset = App.Placement(Vector(0, 0, -23.5), App.Rotation())
sketch17.addGeometry(Part.Circle(Vector(0, 0, 0), Vector(0, 0, 1), 1.5), False)
sketch17.addConstraint(Sketcher.Constraint("Coincident", 0, 3, -1, 1))
sketch17.addConstraint(Sketcher.Constraint("Diameter", 0, Q("3 mm")))
pocket7 = body.newObject("PartDesign::Pocket", "Pocket006")
pocket7.Profile = sketch17
pocket7.Length = 2
doc.recompute()

fillet5 = body.newObject("PartDesign::Fillet", "Fillet004")
fillet5.Base = (pocket7, edges_at(pocket7, [
    (6, 5, -24),
    (6, -5, -24),
    (-6, -5, -24),
    (-6, 5, -24),
]))
fillet5.Radius = 1

sketch18 = body.newObject("Sketcher::SketchObject", "Sketch017")
sketch18.AttachmentSupport = (doc.getObject("XY_Plane"), [""])
sketch18.MapMode = "FlatFace"
sketch18.AttachmentOffset = App.Placement(Vector(0, 0, -24.5), App.Rotation())
sketch18.addGeometry(Part.Circle(Vector(4.5, 0, 0), Vector(0, 0, 1), 0.5), False)
sketch18.addGeometry(Part.Circle(Vector(-4.5, 0, 0), Vector(0, 0, 1), 0.5), False)
sketch18.addConstraint(Sketcher.Constraint("Equal", 0, 1))
sketch18.addConstraint(Sketcher.Constraint("Symmetric", 0, 3, 1, 3, -1, 1))
sketch18.addConstraint(Sketcher.Constraint("PointOnObject", 0, 3, -1))
sketch18.addConstraint(Sketcher.Constraint("Diameter", 0, Q("1 mm")))
sketch18.addConstraint(Sketcher.Constraint("DistanceX", 1, 3, 0, 3, Q("9 mm")))
pocket8 = body.newObject("PartDesign::Pocket", "Pocket007")
pocket8.Profile = sketch18
pocket8.Length = 2
pocket8.Reversed = True

sketch19 = body.newObject("Sketcher::SketchObject", "Sketch018")
sketch19.AttachmentSupport = (doc.getObject("XY_Plane"), [""])
sketch19.MapMode = "FlatFace"
sketch19.AttachmentOffset = App.Placement(Vector(0, 0, -24.5), App.Rotation())
sketch19.addGeometry(Part.Circle(Vector(4.3, -3.3, 0), Vector(0, 0, 1), 0.8), False)
sketch19.addGeometry(Part.Circle(Vector(-4.3, 3.3, 0), Vector(0, 0, 1), 0.8), False)
sketch19.addConstraint(Sketcher.Constraint("Equal", 0, 1))
sketch19.addConstraint(Sketcher.Constraint("Symmetric", 0, 3, 1, 3, -1, 1))
sketch19.addConstraint(Sketcher.Constraint("Diameter", 0, Q("1.5 mm")))
sketch19.addConstraint(Sketcher.Constraint("DistanceX", -1, 1, 0, 3, Q("4.3 mm")))
sketch19.addConstraint(Sketcher.Constraint("DistanceY", 0, 3, -1, 1, Q("3.3 mm")))
pocket9 = body.newObject("PartDesign::Pocket", "Pocket008")
pocket9.Profile = sketch19
pocket9.Length = 9.3
pocket9.Reversed = True
doc.recompute()

chamfer = body.newObject("PartDesign::Chamfer", "Chamfer")
chamfer.Base = (pocket9, edges_at(pocket9, [(5.05, -3.3, -24.5), (-3.55, 3.3, -24.5)]))
chamfer.Size = 0.3

sketch20 = body.newObject("Sketcher::SketchObject", "Sketch019")
sketch20.AttachmentSupport = (doc.getObject("XY_Plane"), [""])
sketch20.MapMode = "FlatFace"
sketch20.AttachmentOffset = App.Placement(Vector(0, 0, -19.5), App.Rotation())
sketch20.addGeometry(Part.Circle(Vector(0, 0, 0), Vector(0, 0, 1), 0.5), False)
sketch20.addConstraint(Sketcher.Constraint("Coincident", 0, 3, -1, 1))
sketch20.addConstraint(Sketcher.Constraint("Diameter", 0, Q("1 mm")))
pocket10 = body.newObject("PartDesign::Pocket", "Pocket009")
pocket10.Profile = sketch20
pocket10.Length = 1
pocket10.Reversed = True

sketch21 = body.newObject("Sketcher::SketchObject", "Sketch020")
sketch21.AttachmentSupport = (doc.getObject("XY_Plane"), [""])
sketch21.MapMode = "FlatFace"
sketch21.AttachmentOffset = App.Placement(Vector(0, 0, -24.5), App.Rotation())
sketch21.addGeometry(Part.Circle(Vector(-3.2, -1.2, 0), Vector(0, 0, 1), 0.5), False)
sketch21.addGeometry(Part.Circle(Vector(3.2, 1.2, 0), Vector(0, 0, 1), 0.5), False)
sketch21.addConstraint(Sketcher.Constraint("Equal", 0, 1))
sketch21.addConstraint(Sketcher.Constraint("Symmetric", 0, 3, 1, 3, -1, 1))
sketch21.addConstraint(Sketcher.Constraint("Diameter", 0, Q("1 mm")))
sketch21.addConstraint(Sketcher.Constraint("DistanceY", 0, 3, 1, 3, Q("2.5 mm")))
sketch21.addConstraint(Sketcher.Constraint("DistanceX", 0, 3, -1, 1, Q("3.22 mm")))
pocket11 = body.newObject("PartDesign::Pocket", "Pocket010")
pocket11.Profile = sketch21
pocket11.Length = 1
pocket11.Reversed = True

sketch22 = body.newObject("Sketcher::SketchObject", "Sketch021")
sketch22.AttachmentSupport = (doc.getObject("XY_Plane"), [""])
sketch22.MapMode = "FlatFace"
sketch22.AttachmentOffset = App.Placement(Vector(0, 0, -19.5), App.Rotation())
sketch22.addGeometry(Part.Circle(Vector(3.2, 1.2, 0), Vector(0, 0, 1), 0.5), False)
sketch22.addConstraint(Sketcher.Constraint("Diameter", 0, Q("1 mm")))
sketch22.addConstraint(Sketcher.Constraint("DistanceX", -1, 1, 0, 3, Q("3.22 mm")))
sketch22.addConstraint(Sketcher.Constraint("DistanceY", -1, 1, 0, 3, Q("1.25 mm")))
pocket12 = body.newObject("PartDesign::Pocket", "Pocket011")
pocket12.Profile = sketch22
pocket12.Length = 1
pocket12.Reversed = True

sketch23 = body.newObject("Sketcher::SketchObject", "Sketch022")
sketch23.AttachmentSupport = (doc.getObject("XY_Plane"), [""])
sketch23.MapMode = "FlatFace"
sketch23.AttachmentOffset = App.Placement(Vector(0, 0, -16), App.Rotation())
sketch23.addGeometry(Part.Circle(Vector(-3.2, -1.2, 0), Vector(0, 0, 1), 0.5), False)
sketch23.addConstraint(Sketcher.Constraint("Diameter", 0, Q("1 mm")))
sketch23.addConstraint(Sketcher.Constraint("DistanceX", 0, 3, -1, 1, Q("3.22 mm")))
sketch23.addConstraint(Sketcher.Constraint("DistanceY", 0, 3, -1, 1, Q("1.25 mm")))
pocket13 = body.newObject("PartDesign::Pocket", "Pocket012")
pocket13.Profile = sketch23
pocket13.Length = 1
pocket13.Reversed = True

doc.recompute()
